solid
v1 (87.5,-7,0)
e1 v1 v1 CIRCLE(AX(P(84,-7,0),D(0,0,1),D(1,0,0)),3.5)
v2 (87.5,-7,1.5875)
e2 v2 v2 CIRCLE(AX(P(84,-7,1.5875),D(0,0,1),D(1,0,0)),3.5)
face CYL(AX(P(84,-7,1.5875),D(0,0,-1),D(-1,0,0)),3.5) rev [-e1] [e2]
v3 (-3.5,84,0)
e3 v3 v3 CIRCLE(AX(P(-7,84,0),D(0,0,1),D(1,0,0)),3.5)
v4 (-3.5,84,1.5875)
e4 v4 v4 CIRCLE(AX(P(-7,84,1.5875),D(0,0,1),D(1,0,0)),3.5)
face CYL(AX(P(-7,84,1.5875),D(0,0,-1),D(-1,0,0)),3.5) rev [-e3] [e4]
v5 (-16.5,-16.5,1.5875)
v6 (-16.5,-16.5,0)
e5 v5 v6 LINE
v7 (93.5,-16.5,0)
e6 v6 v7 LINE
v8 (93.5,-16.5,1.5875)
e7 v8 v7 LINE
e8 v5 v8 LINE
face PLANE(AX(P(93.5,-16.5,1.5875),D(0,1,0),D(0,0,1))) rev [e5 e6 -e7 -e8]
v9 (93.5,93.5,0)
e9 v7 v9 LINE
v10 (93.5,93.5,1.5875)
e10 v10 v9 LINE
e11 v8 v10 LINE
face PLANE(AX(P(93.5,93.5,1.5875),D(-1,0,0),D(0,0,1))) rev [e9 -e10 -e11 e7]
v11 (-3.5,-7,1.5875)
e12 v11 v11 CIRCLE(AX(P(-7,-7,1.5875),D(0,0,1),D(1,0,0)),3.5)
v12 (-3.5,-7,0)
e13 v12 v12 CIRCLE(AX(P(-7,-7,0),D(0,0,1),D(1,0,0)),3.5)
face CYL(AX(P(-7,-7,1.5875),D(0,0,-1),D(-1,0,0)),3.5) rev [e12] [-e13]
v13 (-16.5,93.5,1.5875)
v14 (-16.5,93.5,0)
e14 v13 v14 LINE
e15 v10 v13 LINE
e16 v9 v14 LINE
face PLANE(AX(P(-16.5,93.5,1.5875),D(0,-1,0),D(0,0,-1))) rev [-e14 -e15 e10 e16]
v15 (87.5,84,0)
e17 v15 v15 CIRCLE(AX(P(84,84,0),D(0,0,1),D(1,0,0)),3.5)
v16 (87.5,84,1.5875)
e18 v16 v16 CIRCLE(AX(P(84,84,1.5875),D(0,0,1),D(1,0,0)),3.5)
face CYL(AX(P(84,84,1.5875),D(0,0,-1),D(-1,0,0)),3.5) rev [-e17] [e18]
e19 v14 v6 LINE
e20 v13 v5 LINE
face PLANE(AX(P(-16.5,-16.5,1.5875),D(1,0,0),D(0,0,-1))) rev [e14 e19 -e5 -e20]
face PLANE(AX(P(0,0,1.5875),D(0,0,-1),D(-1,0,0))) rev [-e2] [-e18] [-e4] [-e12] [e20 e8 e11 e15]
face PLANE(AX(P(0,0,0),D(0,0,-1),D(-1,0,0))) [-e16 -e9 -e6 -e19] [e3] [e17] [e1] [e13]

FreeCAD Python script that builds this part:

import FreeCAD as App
import Part
import Sketcher
Q = App.Units.Quantity


def add_polygon(sketch, points):
    """Adds a closed chain of lines whose ends are joined by coincident constraints."""
    first, n = sketch.GeometryCount, len(points)
    for a, b in zip(points, points[1:] + points[:1]):
        sketch.addGeometry(Part.LineSegment(App.Vector(*a, 0), App.Vector(*b, 0)), False)
    for i in range(n):
        sketch.addConstraint(Sketcher.Constraint("Coincident", first + i, 2, first + (i + 1) % n, 1))

doc = App.newDocument("Part")
body = doc.addObject("PartDesign::Body", "Body")

sketch1 = body.newObject("Sketcher::SketchObject", "Sketch")
sketch1.AttachmentSupport = (doc.getObject("XY_Plane"), [""])
sketch1.MapMode = "FlatFace"
add_polygon(sketch1, [(-16.5, 93.5), (-16.5, -16.5), (93.5, -16.5), (93.5, 93.5)])
sketch1.addGeometry(Part.Circle(App.Vector(-7, -7, 0), App.Vector(0, 0, 1), 3.5), False)
sketch1.addGeometry(Part.Circle(App.Vector(84, -7, 0), App.Vector(0, 0, 1), 3.5), False)
sketch1.addGeometry(Part.Circle(App.Vector(-7, 84, 0), App.Vector(0, 0, 1), 3.5), False)
sketch1.addGeometry(Part.Circle(App.Vector(84, 84, 0), App.Vector(0, 0, 1), 3.5), False)
sketch1.addConstraint([
    Sketcher.Constraint("Vertical", 0),
    Sketcher.Constraint("Horizontal", 1),
    Sketcher.Constraint("Vertical", 2),
    Sketcher.Constraint("Horizontal", 3),
    Sketcher.Constraint("Equal", 4, 5),
    Sketcher.Constraint("Equal", 5, 6),
    Sketcher.Constraint("Equal", 6, 7),
    Sketcher.Constraint("Horizontal", 4, 3, 5, 3),
    Sketcher.Constraint("Horizontal", 6, 3, 7, 3),
    Sketcher.Constraint("Vertical", 4, 3, 6, 3),
    Sketcher.Constraint("Vertical", 5, 3, 7, 3),
    Sketcher.Constraint("Equal", 3, 0),
    Sketcher.Constraint("Diameter", 4, Q("7 mm")),
    Sketcher.Constraint("DistanceX", 1, 1, 1, 2, Q("110 mm")),
    Sketcher.Constraint("DistanceX", 4, 3, -1, 1, Q("7 mm")),
    Sketcher.Constraint("DistanceY", 4, 3, -1, 1, Q("7 mm")),
    Sketcher.Constraint("DistanceX", -1, 1, 5, 3, Q("84 mm")),
    Sketcher.Constraint("DistanceY", -1, 1, 6, 3, Q("84 mm")),
    Sketcher.Constraint("DistanceX", 0, 2, -1, 1, Q("16.5 mm")),
    Sketcher.Constraint("DistanceY", 0, 2, -1, 1, Q("16.5 mm")),
])
pad1 = body.newObject("PartDesign::Pad", "Pad")
pad1.Profile = sketch1
pad1.Length = 1.5875

doc.recompute()
